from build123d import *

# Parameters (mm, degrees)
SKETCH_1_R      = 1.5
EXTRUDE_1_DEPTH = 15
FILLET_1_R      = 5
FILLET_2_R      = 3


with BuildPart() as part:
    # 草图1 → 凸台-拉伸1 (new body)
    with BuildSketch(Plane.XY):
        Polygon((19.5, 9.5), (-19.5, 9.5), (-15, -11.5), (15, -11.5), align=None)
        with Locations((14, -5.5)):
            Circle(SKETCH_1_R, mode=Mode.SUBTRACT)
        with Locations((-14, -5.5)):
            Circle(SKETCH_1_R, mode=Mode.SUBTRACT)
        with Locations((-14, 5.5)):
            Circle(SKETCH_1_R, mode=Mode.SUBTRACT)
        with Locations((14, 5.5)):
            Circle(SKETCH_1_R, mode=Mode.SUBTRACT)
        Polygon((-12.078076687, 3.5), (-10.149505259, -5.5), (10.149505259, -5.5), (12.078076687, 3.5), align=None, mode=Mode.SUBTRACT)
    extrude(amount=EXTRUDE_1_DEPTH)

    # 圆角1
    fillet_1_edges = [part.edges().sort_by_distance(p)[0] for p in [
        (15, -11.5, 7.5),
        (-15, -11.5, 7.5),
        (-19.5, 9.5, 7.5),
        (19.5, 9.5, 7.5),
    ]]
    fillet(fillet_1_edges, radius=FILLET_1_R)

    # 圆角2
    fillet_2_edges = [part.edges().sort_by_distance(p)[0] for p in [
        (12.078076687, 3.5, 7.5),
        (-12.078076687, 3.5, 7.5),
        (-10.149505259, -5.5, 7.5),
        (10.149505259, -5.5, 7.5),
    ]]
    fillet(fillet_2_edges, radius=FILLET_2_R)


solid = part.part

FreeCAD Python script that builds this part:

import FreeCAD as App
import Part
import Sketcher
from FreeCAD import Vector
Q = App.Units.Quantity


def edges_at(feature, points):
    """Names of the edges that pass closest to the given points."""
    edges = feature.Shape.Edges
    near = lambda p: min(range(len(edges)), key=lambda i: edges[i].distToShape(Part.Vertex(*p))[0])
    return sorted({f"Edge{near(p) + 1}" for p in points})


def add_polygon(sketch, points):
    """Adds a closed chain of lines whose ends are joined by coincident constraints."""
    first, n = sketch.GeometryCount, len(points)
    for a, b in zip(points, points[1:] + points[:1]):
        sketch.addGeometry(Part.LineSegment(App.Vector(*a, 0), App.Vector(*b, 0)), False)
    for i in range(n):
        sketch.addConstraint(Sketcher.Constraint("Coincident", first + i, 2, first + (i + 1) % n, 1))

doc = App.newDocument("Part")
body = doc.addObject("PartDesign::Body", "Body")

# Sketch on XY plane
sketch1 = body.newObject("Sketcher::SketchObject", "Sketch")
sketch1.AttachmentSupport = (doc.getObject("XY_Plane"), [""])
sketch1.MapMode = "FlatFace"
add_polygon(sketch1, [(19.5, 9.5), (-19.5, 9.5), (-15, -11.5), (15, -11.5)])  # lines 0-3
sketch1.addGeometry(Part.Circle(Vector(-14, -5.5, 0), Vector(0, 0, 1), 1.5), False)  # 4
sketch1.addGeometry(Part.Circle(Vector(14, -5.5, 0), Vector(0, 0, 1), 1.5), False)  # 5
add_polygon(sketch1, [(-10.1, -5.5), (-12.1, 3.5), (12.1, 3.5), (10.1, -5.5)])  # lines 6-9
sketch1.addGeometry(Part.Circle(Vector(-14, 5.5, 0), Vector(0, 0, 1), 1.5), False)  # 10
sketch1.addGeometry(Part.Circle(Vector(14, 5.5, 0), Vector(0, 0, 1), 1.5), False)  # 11
sketch1.addConstraint([
    Sketcher.Constraint("Horizontal", 0),
    Sketcher.Constraint("Horizontal", 2),
    Sketcher.Constraint("Horizontal", 7),
    Sketcher.Constraint("Horizontal", 9),
    Sketcher.Constraint("Equal", 4, 5),
    Sketcher.Constraint("Equal", 5, 10),
    Sketcher.Constraint("Equal", 10, 11),
    Sketcher.Constraint("Symmetric", 5, 3, 10, 3, -1, 1),
    Sketcher.Constraint("Symmetric", 4, 3, 11, 3, -1, 1),
    Sketcher.Constraint("Symmetric", 4, 3, 5, 3, -2),
    Sketcher.Constraint("Parallel", 1, 6),
    Sketcher.Constraint("Parallel", 3, 8),
    Sketcher.Constraint("Horizontal", 5, 3, 8, 2),
    Sketcher.Constraint("Equal", 1, 3),
    Sketcher.Constraint("Diameter", 4, Q("3 mm")),
    Sketcher.Constraint("DistanceX", 0, 2, 0, 1, Q("39 mm")),
    Sketcher.Constraint("DistanceX", 2, 1, 2, 2, Q("30 mm")),
    Sketcher.Constraint("DistanceX", 4, 3, -1, 1, Q("14 mm")),
    Sketcher.Constraint("DistanceX", 1, 2, -1, 1, Q("15 mm")),
    Sketcher.Constraint("DistanceY", 4, 3, 10, 3, Q("11 mm")),
    Sketcher.Constraint("DistanceY", 10, 3, 0, 2, Q("4 mm")),
    Sketcher.Constraint("DistanceY", 1, 2, 4, 3, Q("6 mm")),
    Sketcher.Constraint("DistanceY", 6, 2, 10, 3, Q("2 mm")),
    Sketcher.Constraint("DistanceX", 9, 2, 9, 1, Q("20.299011 mm")),
    Sketcher.Constraint("DistanceX", 6, 2, -1, 1, Q("12.078077 mm")),
])
pad1 = body.newObject("PartDesign::Pad", "Pad")
pad1.Profile = sketch1
pad1.Length = 15
doc.recompute()

fillet = body.newObject("PartDesign::Fillet", "Fillet")
fillet.Base = (pad1, edges_at(pad1, [
    (15, -11.5, 7.5),
    (-15, -11.5, 7.5),
    (-19.5, 9.5, 7.5),
    (19.5, 9.5, 7.5),
]))
fillet.Radius = 5
doc.recompute()

fillet2 = body.newObject("PartDesign::Fillet", "Fillet001")
fillet2.Base = (fillet, edges_at(fillet, [
    (12.078, 3.5, 7.5),
    (-12.078, 3.5, 7.5),
    (-10.15, -5.5, 7.5),
    (10.15, -5.5, 7.5),
]))
fillet2.Radius = 3

doc.recompute()
